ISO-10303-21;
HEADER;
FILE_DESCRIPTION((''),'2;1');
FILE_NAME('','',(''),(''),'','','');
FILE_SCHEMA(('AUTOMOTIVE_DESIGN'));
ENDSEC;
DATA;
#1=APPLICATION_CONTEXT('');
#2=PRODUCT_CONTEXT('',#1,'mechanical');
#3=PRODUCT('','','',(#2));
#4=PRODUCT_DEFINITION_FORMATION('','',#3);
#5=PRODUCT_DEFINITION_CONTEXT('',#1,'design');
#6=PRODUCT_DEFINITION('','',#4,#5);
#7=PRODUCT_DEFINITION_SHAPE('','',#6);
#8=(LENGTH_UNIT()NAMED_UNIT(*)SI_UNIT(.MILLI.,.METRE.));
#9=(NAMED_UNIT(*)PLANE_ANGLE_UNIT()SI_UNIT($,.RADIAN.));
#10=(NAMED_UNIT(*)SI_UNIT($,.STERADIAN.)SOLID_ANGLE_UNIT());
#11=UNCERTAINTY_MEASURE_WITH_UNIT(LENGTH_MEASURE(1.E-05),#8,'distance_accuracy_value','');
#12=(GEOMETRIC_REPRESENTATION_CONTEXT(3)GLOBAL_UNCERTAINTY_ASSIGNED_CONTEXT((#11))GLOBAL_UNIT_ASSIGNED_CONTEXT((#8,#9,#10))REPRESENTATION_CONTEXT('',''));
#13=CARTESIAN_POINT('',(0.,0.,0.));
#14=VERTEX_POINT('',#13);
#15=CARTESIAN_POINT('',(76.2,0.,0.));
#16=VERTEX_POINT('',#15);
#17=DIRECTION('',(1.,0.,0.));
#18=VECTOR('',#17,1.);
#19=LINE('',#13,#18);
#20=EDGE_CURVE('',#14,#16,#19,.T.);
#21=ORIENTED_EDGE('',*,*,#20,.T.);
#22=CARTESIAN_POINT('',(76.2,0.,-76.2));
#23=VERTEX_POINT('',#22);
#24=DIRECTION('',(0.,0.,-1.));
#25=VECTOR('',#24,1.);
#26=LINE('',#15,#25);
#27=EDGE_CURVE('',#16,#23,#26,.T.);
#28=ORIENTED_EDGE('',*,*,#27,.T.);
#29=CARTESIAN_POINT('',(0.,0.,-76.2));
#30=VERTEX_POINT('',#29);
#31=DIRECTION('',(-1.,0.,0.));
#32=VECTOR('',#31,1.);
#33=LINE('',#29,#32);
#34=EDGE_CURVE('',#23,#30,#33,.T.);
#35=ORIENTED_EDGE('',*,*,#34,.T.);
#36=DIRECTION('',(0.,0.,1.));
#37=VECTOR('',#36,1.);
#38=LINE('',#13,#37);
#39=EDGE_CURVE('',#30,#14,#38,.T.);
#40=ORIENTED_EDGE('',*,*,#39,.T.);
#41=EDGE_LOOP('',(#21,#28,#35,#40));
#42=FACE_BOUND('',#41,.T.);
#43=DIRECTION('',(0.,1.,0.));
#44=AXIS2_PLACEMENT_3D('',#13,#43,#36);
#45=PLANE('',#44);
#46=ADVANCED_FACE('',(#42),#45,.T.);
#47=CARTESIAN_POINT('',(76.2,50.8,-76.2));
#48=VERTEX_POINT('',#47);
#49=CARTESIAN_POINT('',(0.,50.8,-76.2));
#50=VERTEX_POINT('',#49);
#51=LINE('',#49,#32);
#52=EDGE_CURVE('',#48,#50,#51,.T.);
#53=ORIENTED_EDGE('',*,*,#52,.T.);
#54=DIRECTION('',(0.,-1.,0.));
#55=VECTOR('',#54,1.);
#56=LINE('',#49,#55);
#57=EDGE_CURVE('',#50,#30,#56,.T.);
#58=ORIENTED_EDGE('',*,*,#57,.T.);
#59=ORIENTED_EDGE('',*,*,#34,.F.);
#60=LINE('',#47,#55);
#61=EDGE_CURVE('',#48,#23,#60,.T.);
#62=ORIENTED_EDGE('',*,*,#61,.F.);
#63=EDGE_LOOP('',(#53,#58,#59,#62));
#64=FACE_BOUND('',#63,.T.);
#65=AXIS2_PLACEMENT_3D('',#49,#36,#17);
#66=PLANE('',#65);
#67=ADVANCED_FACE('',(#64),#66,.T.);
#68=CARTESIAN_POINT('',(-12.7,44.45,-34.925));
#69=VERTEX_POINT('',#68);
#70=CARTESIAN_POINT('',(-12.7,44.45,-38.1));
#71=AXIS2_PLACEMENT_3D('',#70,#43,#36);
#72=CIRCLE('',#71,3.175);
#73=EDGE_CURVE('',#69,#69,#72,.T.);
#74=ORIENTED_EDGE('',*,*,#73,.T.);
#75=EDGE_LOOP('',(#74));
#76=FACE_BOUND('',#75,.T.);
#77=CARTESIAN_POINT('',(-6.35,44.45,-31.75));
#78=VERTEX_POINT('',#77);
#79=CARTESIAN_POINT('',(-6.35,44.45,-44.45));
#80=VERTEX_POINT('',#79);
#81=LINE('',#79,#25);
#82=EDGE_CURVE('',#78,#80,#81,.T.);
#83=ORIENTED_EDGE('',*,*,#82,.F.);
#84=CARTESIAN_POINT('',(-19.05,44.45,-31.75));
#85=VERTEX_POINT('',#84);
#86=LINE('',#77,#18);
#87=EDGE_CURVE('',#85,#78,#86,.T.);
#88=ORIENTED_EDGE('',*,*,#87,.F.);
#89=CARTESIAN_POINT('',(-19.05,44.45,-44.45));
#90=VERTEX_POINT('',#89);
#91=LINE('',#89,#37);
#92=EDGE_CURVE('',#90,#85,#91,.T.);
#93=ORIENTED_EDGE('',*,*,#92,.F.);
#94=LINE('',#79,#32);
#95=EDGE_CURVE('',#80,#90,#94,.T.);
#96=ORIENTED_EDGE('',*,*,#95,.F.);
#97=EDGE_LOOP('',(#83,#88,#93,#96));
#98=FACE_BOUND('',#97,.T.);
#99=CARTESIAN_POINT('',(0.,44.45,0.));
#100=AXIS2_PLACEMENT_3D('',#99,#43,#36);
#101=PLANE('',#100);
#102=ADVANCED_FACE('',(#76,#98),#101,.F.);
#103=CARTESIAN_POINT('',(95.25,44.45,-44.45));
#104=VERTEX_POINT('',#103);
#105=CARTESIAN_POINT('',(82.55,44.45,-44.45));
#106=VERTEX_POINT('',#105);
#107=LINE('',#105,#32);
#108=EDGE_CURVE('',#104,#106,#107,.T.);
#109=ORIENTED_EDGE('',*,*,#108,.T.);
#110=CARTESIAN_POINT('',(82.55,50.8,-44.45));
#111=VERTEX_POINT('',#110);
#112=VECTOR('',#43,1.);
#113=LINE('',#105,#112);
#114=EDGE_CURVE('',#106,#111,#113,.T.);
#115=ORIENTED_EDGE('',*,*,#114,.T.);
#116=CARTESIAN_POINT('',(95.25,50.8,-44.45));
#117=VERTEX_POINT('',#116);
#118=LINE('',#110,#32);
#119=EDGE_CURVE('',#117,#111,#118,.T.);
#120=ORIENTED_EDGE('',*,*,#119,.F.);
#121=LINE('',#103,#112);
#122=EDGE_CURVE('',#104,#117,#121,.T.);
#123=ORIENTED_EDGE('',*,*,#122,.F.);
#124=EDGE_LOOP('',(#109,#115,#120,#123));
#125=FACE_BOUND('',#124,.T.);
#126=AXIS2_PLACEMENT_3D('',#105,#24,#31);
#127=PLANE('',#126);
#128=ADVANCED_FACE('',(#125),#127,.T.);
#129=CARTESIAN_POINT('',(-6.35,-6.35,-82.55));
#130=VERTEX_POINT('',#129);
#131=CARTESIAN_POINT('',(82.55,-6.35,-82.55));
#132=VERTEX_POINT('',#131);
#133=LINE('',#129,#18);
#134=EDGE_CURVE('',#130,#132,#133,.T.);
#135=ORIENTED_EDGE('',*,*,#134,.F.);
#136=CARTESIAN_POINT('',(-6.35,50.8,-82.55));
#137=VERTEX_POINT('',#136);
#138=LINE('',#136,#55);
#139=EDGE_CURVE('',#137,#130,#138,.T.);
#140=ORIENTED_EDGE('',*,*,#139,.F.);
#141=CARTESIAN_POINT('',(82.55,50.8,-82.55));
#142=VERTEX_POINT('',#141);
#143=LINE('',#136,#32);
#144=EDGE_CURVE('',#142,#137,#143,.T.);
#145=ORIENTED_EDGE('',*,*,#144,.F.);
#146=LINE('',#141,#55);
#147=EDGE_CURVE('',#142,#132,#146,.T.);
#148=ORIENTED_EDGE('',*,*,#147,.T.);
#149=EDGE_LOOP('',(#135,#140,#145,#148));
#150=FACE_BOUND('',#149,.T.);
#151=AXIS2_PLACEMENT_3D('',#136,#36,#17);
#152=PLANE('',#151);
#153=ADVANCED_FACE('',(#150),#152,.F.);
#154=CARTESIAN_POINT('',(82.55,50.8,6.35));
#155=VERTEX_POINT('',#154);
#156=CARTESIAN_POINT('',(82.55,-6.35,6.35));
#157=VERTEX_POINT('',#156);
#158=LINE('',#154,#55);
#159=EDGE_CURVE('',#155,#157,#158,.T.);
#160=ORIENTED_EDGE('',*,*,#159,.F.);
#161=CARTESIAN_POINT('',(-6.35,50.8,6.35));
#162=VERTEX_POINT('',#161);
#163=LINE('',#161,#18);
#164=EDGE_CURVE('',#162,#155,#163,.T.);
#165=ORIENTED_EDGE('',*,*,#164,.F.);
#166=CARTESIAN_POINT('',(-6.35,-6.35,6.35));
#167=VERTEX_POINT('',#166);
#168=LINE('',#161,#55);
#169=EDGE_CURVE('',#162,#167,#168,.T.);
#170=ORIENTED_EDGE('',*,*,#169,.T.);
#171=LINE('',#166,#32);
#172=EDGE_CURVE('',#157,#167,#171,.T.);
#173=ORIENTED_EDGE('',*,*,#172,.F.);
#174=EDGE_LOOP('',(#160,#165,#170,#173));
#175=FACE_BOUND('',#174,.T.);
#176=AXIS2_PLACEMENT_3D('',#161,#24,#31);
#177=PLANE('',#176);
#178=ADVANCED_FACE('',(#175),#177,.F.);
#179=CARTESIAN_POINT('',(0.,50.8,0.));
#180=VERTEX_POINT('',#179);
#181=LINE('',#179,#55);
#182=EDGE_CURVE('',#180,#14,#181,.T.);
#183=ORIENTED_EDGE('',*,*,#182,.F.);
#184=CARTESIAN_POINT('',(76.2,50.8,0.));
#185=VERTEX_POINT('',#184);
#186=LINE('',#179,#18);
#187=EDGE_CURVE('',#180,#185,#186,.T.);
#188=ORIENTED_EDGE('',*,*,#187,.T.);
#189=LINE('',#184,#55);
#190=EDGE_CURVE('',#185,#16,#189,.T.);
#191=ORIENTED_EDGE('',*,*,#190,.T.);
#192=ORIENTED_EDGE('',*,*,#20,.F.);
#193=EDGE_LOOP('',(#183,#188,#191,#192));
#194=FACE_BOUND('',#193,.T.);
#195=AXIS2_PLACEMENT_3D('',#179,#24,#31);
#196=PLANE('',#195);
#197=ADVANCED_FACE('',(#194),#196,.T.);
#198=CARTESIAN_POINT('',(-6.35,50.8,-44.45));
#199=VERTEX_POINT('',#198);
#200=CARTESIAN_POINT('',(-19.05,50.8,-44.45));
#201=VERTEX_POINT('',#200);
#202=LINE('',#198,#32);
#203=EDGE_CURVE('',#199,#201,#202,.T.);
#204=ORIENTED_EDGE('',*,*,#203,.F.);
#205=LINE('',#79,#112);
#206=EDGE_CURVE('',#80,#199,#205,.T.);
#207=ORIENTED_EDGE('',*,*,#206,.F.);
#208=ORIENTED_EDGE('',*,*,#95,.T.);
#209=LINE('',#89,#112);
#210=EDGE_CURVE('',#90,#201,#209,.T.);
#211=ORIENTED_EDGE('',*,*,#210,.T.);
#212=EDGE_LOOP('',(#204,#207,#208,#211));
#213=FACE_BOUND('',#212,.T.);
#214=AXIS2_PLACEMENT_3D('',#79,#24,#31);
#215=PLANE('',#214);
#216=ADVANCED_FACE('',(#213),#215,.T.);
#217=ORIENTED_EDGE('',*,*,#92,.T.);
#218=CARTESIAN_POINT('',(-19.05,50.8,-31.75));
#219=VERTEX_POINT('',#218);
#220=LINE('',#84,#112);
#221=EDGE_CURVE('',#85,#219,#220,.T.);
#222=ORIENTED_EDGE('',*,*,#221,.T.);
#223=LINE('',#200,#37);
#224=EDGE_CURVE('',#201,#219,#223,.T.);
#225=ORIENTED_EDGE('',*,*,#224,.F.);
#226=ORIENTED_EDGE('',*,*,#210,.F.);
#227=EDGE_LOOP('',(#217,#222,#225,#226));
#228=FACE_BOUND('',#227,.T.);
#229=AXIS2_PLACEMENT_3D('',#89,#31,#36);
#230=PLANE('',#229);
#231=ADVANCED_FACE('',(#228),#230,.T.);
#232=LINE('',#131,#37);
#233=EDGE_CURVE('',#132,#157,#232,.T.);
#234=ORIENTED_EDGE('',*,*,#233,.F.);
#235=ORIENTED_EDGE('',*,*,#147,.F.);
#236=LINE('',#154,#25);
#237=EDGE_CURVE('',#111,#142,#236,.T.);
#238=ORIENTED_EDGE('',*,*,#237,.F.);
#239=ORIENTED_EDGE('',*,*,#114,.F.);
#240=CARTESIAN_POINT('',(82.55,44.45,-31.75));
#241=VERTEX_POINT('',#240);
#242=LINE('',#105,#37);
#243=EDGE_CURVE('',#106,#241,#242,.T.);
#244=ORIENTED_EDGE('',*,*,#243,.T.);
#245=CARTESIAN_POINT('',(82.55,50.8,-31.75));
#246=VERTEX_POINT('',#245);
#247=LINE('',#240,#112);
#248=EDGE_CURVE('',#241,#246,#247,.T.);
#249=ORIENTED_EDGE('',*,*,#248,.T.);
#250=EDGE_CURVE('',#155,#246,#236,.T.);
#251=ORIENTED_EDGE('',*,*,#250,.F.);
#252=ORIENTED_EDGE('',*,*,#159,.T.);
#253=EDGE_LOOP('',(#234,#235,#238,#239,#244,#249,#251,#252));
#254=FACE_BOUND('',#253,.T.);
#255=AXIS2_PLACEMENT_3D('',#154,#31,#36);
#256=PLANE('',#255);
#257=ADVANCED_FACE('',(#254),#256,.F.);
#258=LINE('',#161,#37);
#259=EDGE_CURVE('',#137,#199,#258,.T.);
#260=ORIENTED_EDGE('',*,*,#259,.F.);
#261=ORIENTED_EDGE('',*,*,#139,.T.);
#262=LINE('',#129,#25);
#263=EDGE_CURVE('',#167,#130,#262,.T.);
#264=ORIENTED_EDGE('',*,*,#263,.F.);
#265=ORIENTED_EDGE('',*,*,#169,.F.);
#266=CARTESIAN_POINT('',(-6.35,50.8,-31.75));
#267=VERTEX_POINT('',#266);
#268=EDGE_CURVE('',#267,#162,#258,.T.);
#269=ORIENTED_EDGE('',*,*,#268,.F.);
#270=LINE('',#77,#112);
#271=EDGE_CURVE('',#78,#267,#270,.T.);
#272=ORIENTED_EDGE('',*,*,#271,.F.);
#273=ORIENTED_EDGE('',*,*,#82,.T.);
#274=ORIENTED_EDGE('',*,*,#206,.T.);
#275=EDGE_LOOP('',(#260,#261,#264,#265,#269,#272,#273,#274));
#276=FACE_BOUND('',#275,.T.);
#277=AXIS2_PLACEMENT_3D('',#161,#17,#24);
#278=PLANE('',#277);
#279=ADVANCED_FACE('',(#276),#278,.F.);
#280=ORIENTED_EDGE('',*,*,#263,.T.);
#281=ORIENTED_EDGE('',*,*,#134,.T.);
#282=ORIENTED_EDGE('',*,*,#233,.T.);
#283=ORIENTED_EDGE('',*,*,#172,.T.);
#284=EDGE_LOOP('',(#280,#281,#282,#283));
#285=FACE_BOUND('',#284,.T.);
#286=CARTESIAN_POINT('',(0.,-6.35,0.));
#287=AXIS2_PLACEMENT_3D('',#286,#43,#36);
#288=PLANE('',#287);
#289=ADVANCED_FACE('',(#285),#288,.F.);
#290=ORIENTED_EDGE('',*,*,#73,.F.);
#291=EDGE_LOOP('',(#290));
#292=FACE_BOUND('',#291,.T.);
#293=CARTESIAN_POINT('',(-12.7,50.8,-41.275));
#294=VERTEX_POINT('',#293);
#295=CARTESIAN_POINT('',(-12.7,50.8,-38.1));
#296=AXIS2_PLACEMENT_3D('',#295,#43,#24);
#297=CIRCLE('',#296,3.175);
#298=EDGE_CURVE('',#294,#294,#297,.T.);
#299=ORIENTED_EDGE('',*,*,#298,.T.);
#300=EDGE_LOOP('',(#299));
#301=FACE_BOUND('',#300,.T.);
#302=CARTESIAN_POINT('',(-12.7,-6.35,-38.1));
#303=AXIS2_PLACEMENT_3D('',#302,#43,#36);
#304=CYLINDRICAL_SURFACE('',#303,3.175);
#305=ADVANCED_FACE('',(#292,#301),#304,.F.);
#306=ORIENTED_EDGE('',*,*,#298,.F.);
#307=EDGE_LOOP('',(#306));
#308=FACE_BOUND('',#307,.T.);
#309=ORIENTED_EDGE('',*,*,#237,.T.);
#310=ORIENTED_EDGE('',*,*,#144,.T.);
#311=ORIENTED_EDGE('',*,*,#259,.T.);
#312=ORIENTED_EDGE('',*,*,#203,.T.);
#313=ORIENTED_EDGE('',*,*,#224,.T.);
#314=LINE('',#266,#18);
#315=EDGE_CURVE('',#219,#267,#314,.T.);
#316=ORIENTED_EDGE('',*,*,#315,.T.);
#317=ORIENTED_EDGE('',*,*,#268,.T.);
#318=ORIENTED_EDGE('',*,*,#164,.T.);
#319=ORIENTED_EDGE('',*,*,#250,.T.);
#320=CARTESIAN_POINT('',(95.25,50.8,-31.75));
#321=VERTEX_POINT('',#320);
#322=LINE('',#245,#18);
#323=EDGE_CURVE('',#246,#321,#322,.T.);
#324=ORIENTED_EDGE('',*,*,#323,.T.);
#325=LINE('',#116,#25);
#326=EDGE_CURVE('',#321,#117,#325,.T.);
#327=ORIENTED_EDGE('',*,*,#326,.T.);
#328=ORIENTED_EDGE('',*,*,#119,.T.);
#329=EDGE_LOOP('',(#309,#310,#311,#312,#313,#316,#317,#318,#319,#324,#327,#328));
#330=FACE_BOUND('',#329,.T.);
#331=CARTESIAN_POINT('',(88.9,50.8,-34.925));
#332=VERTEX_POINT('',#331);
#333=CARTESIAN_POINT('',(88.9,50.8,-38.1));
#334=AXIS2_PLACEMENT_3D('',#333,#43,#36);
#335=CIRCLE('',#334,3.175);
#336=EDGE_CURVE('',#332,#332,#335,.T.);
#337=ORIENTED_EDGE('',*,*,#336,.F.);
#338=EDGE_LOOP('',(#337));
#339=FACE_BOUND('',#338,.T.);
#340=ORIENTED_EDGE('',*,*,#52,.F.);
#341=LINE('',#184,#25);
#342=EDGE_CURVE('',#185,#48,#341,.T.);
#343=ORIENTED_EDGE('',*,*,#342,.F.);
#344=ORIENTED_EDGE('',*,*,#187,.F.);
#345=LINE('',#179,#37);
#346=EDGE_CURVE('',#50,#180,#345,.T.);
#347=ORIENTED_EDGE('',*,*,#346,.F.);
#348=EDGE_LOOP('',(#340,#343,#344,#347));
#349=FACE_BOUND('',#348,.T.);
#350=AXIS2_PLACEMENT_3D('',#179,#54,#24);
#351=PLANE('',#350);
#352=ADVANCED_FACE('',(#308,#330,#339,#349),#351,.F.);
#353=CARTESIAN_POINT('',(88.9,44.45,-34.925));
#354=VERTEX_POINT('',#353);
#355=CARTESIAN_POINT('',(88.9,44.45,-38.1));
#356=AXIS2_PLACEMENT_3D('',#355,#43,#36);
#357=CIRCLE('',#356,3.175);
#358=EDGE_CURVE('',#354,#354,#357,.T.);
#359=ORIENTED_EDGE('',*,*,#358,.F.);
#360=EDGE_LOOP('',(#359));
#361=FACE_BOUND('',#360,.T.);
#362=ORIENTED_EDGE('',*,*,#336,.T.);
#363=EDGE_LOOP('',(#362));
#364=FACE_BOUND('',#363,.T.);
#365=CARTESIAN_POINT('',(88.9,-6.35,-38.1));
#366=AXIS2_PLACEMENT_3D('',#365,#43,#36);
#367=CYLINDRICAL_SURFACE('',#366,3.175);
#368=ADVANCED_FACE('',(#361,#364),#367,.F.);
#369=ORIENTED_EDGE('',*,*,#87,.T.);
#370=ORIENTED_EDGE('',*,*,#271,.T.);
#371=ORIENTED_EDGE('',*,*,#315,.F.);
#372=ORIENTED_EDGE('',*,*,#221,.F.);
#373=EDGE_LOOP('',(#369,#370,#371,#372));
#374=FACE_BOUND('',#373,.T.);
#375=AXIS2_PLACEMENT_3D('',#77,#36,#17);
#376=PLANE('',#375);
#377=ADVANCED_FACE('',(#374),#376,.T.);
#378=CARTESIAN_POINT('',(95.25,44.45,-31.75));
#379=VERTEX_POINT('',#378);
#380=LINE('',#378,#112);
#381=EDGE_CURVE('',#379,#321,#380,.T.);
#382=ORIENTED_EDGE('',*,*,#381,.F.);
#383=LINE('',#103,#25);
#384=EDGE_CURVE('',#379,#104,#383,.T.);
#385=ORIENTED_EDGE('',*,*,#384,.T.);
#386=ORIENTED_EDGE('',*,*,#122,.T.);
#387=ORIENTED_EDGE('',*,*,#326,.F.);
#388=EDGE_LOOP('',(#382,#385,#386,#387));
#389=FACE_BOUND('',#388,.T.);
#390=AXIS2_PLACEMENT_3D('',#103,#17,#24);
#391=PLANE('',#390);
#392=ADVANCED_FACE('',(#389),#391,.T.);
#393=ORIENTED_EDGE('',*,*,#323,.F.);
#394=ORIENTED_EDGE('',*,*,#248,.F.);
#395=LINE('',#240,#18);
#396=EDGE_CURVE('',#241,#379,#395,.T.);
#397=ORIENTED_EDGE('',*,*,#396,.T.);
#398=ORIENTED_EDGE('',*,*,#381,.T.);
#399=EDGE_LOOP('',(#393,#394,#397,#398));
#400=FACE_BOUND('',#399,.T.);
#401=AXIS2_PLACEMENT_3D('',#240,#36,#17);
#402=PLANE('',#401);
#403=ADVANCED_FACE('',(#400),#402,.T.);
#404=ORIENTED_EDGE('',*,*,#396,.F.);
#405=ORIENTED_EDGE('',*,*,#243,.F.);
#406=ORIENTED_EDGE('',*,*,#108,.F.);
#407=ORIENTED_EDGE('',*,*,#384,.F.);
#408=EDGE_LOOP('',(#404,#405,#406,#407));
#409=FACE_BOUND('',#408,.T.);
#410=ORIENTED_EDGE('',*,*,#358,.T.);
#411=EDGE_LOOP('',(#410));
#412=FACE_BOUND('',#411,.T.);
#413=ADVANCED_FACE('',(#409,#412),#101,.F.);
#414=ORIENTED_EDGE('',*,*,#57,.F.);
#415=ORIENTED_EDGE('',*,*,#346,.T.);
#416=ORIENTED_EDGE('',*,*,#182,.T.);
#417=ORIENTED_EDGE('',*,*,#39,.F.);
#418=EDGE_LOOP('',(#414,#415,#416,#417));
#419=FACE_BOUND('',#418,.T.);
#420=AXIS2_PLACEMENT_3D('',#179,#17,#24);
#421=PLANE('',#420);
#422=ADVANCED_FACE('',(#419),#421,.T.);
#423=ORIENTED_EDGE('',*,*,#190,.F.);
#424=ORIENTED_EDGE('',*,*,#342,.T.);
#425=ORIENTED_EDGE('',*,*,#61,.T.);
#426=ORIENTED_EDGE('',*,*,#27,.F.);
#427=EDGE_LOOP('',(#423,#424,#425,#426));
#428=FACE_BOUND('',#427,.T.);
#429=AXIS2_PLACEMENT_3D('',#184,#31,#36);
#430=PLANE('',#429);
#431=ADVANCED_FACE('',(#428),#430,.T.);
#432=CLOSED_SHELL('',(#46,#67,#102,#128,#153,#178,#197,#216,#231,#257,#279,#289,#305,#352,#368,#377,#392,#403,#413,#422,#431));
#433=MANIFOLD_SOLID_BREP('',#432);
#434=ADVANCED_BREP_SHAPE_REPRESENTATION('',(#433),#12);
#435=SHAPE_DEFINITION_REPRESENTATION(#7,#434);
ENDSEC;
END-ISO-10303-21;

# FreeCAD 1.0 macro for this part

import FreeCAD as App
import Part
import Sketcher

V = App.Vector
Q = App.Units.Quantity

doc = App.newDocument("Part")
body = doc.addObject("PartDesign::Body", "Body")

# Sketch on XZ plane
sketch1 = doc.addObject("Sketcher::SketchObject", "Sketch")
body.addObject(sketch1)
sketch1.AttachmentSupport = (doc.XZ_Plane, [""])
sketch1.MapMode = "FlatFace"
sketch1.addGeometry([
    Part.LineSegment(V(-6.35, -82.55, 0), V(-6.35, 6.35, 0)),  # 0
    Part.LineSegment(V(-6.35, 6.35, 0), V(82.55, 6.35, 0)),  # 1
    Part.LineSegment(V(82.55, 6.35, 0), V(82.55, -82.55, 0)),  # 2
    Part.LineSegment(V(82.55, -82.55, 0), V(-6.35, -82.55, 0)),  # 3
    Part.LineSegment(V(76.2, 0, 0), V(0, 0, 0)),  # 4
    Part.LineSegment(V(0, 0, 0), V(0, -76.2, 0)),  # 5
    Part.LineSegment(V(0, -76.2, 0), V(76.2, -76.2, 0)),  # 6
    Part.LineSegment(V(76.2, -76.2, 0), V(76.2, 0, 0)),  # 7
], False)
sketch1.addConstraint([
    Sketcher.Constraint("Coincident", 0, 2, 1, 1),
    Sketcher.Constraint("Coincident", 1, 2, 2, 1),
    Sketcher.Constraint("Coincident", 2, 2, 3, 1),
    Sketcher.Constraint("Coincident", 3, 2, 0, 1),
    Sketcher.Constraint("Coincident", 4, 2, 5, 1),
    Sketcher.Constraint("Coincident", 5, 2, 6, 1),
    Sketcher.Constraint("Coincident", 6, 2, 7, 1),
    Sketcher.Constraint("Coincident", 7, 2, 4, 1),
    Sketcher.Constraint("Vertical", 0),
    Sketcher.Constraint("Horizontal", 1),
    Sketcher.Constraint("Vertical", 2),
    Sketcher.Constraint("Horizontal", 3),
    Sketcher.Constraint("Horizontal", 4),
    Sketcher.Constraint("Vertical", 5),
    Sketcher.Constraint("Horizontal", 6),
    Sketcher.Constraint("Vertical", 7),
    Sketcher.Constraint("Coincident", 4, 2, -1, 1),
    Sketcher.Constraint("Equal", 3, 0),
    Sketcher.Constraint("Equal", 6, 5),
    Sketcher.Constraint("DistanceX", 4, 2, 4, 1, Q("3 in")),
    Sketcher.Constraint("DistanceX", 1, 1, 1, 2, Q("3.5 in")),
    Sketcher.Constraint("DistanceX", 0, 2, -1, 1, Q("0.25 in")),
    Sketcher.Constraint("DistanceY", -1, 1, 0, 2, Q("0.25 in")),
])
pad1 = doc.addObject("PartDesign::Pad", "Pad")
body.addObject(pad1)
pad1.Profile = sketch1
pad1.Length = Q("2 in")
pad1.Reversed = True

# Sketch on XZ plane
sketch2 = doc.addObject("Sketcher::SketchObject", "Sketch001")
body.addObject(sketch2)
sketch2.AttachmentSupport = (doc.XZ_Plane, [""])
sketch2.MapMode = "FlatFace"
sketch2.addGeometry([
    Part.LineSegment(V(-6.35, 6.35, 0), V(-6.35, -82.55, 0)),
    Part.LineSegment(V(-6.35, -82.55, 0), V(82.55, -82.55, 0)),
    Part.LineSegment(V(82.55, -82.55, 0), V(82.55, 6.35, 0)),
    Part.LineSegment(V(82.55, 6.35, 0), V(-6.35, 6.35, 0)),
], False)
sketch2.addConstraint([
    Sketcher.Constraint("Coincident", 0, 2, 1, 1),
    Sketcher.Constraint("Coincident", 1, 2, 2, 1),
    Sketcher.Constraint("Coincident", 2, 2, 3, 1),
    Sketcher.Constraint("Coincident", 3, 2, 0, 1),
    Sketcher.Constraint("Vertical", 0),
    Sketcher.Constraint("Horizontal", 1),
    Sketcher.Constraint("Vertical", 2),
    Sketcher.Constraint("Horizontal", 3),
    Sketcher.Constraint("Equal", 3, 0),
    Sketcher.Constraint("DistanceX", 1, 1, 1, 2, Q("3.5 in")),
    Sketcher.Constraint("DistanceX", 0, 2, -1, 1, Q("0.25 in")),
    Sketcher.Constraint("DistanceY", 0, 2, -1, 1, Q("3.25 in")),
])
pad2 = doc.addObject("PartDesign::Pad", "Pad001")
body.addObject(pad2)
pad2.Profile = sketch2
pad2.Length = Q("0.25 in")

# Sketch on XZ plane
sketch3 = doc.addObject("Sketcher::SketchObject", "Sketch002")
body.addObject(sketch3)
sketch3.AttachmentSupport = (doc.XZ_Plane, [""])
sketch3.MapMode = "FlatFace"
sketch3.AttachmentOffset = App.Placement(V(0, 0, -2 * 25.4), App.Rotation())
sketch3.addGeometry([
    Part.LineSegment(V(82.55, -44.45, 0), V(82.55, -31.75, 0)),  # 0
    Part.LineSegment(V(82.55, -31.75, 0), V(95.25, -31.75, 0)),  # 1
    Part.LineSegment(V(95.25, -31.75, 0), V(95.25, -44.45, 0)),  # 2
    Part.LineSegment(V(95.25, -44.45, 0), V(82.55, -44.45, 0)),  # 3
    Part.LineSegment(V(-19.05, -44.45, 0), V(-19.05, -31.75, 0)),  # 4
    Part.LineSegment(V(-19.05, -31.75, 0), V(-6.35, -31.75, 0)),  # 5
    Part.LineSegment(V(-6.35, -31.75, 0), V(-6.35, -44.45, 0)),  # 6
    Part.LineSegment(V(-6.35, -44.45, 0), V(-19.05, -44.45, 0)),  # 7
], False)
sketch3.addConstraint([
    Sketcher.Constraint("Coincident", 0, 2, 1, 1),
    Sketcher.Constraint("Coincident", 1, 2, 2, 1),
    Sketcher.Constraint("Coincident", 2, 2, 3, 1),
    Sketcher.Constraint("Coincident", 3, 2, 0, 1),
    Sketcher.Constraint("Coincident", 4, 2, 5, 1),
    Sketcher.Constraint("Coincident", 5, 2, 6, 1),
    Sketcher.Constraint("Coincident", 6, 2, 7, 1),
    Sketcher.Constraint("Coincident", 7, 2, 4, 1),
    Sketcher.Constraint("Vertical", 0),
    Sketcher.Constraint("Horizontal", 1),
    Sketcher.Constraint("Vertical", 2),
    Sketcher.Constraint("Horizontal", 3),
    Sketcher.Constraint("Vertical", 4),
    Sketcher.Constraint("Horizontal", 5),
    Sketcher.Constraint("Vertical", 6),
    Sketcher.Constraint("Horizontal", 7),
    Sketcher.Constraint("Horizontal", 1, 2, 4, 2),
    Sketcher.Constraint("Horizontal", 3, 2, 6, 2),
    Sketcher.Constraint("Equal", 3, 5),
    Sketcher.Constraint("Equal", 7, 0),
    Sketcher.Constraint("DistanceX", 1, 1, 1, 2, Q("0.5 in")),
    Sketcher.Constraint("DistanceX", 4, 2, 0, 2, Q("4 in")),
    Sketcher.Constraint("DistanceX", -1, 1, 0, 2, Q("3.25 in")),
    Sketcher.Constraint("DistanceY", 0, 2, -1, 1, Q("1.25 in")),
])
pad3 = doc.addObject("PartDesign::Pad", "Pad002")
body.addObject(pad3)
pad3.Profile = sketch3
pad3.Length = Q("0.25 in")

# Sketch on XZ plane
sketch4 = doc.addObject("Sketcher::SketchObject", "Sketch003")
body.addObject(sketch4)
sketch4.AttachmentSupport = (doc.XZ_Plane, [""])
sketch4.MapMode = "FlatFace"
sketch4.AttachmentOffset = App.Placement(V(0, 0, -2 * 25.4), App.Rotation())
sketch4.addGeometry([
    Part.Circle(V(88.9, -38.1, 0), V(0, 0, 1), 3.175),
    Part.Circle(V(-12.7, -38.1, 0), V(0, 0, 1), 3.175),
], False)
sketch4.addConstraint([
    Sketcher.Constraint("Equal", 0, 1),
    Sketcher.Constraint("Horizontal", 0, 3, 1, 3),
    Sketcher.Constraint("Diameter", 0, Q("0.25 in")),
    Sketcher.Constraint("DistanceX", 1, 3, 0, 3, Q("4 in")),
    Sketcher.Constraint("DistanceX", -1, 1, 0, 3, Q("3.5 in")),
    Sketcher.Constraint("DistanceY", 0, 3, -1, 1, Q("1.5 in")),
])
pocket1 = doc.addObject("PartDesign::Pocket", "Pocket")
body.addObject(pocket1)
pocket1.Profile = sketch4
pocket1.Type = "ThroughAll"
pocket1.Reversed = True

doc.recompute()
